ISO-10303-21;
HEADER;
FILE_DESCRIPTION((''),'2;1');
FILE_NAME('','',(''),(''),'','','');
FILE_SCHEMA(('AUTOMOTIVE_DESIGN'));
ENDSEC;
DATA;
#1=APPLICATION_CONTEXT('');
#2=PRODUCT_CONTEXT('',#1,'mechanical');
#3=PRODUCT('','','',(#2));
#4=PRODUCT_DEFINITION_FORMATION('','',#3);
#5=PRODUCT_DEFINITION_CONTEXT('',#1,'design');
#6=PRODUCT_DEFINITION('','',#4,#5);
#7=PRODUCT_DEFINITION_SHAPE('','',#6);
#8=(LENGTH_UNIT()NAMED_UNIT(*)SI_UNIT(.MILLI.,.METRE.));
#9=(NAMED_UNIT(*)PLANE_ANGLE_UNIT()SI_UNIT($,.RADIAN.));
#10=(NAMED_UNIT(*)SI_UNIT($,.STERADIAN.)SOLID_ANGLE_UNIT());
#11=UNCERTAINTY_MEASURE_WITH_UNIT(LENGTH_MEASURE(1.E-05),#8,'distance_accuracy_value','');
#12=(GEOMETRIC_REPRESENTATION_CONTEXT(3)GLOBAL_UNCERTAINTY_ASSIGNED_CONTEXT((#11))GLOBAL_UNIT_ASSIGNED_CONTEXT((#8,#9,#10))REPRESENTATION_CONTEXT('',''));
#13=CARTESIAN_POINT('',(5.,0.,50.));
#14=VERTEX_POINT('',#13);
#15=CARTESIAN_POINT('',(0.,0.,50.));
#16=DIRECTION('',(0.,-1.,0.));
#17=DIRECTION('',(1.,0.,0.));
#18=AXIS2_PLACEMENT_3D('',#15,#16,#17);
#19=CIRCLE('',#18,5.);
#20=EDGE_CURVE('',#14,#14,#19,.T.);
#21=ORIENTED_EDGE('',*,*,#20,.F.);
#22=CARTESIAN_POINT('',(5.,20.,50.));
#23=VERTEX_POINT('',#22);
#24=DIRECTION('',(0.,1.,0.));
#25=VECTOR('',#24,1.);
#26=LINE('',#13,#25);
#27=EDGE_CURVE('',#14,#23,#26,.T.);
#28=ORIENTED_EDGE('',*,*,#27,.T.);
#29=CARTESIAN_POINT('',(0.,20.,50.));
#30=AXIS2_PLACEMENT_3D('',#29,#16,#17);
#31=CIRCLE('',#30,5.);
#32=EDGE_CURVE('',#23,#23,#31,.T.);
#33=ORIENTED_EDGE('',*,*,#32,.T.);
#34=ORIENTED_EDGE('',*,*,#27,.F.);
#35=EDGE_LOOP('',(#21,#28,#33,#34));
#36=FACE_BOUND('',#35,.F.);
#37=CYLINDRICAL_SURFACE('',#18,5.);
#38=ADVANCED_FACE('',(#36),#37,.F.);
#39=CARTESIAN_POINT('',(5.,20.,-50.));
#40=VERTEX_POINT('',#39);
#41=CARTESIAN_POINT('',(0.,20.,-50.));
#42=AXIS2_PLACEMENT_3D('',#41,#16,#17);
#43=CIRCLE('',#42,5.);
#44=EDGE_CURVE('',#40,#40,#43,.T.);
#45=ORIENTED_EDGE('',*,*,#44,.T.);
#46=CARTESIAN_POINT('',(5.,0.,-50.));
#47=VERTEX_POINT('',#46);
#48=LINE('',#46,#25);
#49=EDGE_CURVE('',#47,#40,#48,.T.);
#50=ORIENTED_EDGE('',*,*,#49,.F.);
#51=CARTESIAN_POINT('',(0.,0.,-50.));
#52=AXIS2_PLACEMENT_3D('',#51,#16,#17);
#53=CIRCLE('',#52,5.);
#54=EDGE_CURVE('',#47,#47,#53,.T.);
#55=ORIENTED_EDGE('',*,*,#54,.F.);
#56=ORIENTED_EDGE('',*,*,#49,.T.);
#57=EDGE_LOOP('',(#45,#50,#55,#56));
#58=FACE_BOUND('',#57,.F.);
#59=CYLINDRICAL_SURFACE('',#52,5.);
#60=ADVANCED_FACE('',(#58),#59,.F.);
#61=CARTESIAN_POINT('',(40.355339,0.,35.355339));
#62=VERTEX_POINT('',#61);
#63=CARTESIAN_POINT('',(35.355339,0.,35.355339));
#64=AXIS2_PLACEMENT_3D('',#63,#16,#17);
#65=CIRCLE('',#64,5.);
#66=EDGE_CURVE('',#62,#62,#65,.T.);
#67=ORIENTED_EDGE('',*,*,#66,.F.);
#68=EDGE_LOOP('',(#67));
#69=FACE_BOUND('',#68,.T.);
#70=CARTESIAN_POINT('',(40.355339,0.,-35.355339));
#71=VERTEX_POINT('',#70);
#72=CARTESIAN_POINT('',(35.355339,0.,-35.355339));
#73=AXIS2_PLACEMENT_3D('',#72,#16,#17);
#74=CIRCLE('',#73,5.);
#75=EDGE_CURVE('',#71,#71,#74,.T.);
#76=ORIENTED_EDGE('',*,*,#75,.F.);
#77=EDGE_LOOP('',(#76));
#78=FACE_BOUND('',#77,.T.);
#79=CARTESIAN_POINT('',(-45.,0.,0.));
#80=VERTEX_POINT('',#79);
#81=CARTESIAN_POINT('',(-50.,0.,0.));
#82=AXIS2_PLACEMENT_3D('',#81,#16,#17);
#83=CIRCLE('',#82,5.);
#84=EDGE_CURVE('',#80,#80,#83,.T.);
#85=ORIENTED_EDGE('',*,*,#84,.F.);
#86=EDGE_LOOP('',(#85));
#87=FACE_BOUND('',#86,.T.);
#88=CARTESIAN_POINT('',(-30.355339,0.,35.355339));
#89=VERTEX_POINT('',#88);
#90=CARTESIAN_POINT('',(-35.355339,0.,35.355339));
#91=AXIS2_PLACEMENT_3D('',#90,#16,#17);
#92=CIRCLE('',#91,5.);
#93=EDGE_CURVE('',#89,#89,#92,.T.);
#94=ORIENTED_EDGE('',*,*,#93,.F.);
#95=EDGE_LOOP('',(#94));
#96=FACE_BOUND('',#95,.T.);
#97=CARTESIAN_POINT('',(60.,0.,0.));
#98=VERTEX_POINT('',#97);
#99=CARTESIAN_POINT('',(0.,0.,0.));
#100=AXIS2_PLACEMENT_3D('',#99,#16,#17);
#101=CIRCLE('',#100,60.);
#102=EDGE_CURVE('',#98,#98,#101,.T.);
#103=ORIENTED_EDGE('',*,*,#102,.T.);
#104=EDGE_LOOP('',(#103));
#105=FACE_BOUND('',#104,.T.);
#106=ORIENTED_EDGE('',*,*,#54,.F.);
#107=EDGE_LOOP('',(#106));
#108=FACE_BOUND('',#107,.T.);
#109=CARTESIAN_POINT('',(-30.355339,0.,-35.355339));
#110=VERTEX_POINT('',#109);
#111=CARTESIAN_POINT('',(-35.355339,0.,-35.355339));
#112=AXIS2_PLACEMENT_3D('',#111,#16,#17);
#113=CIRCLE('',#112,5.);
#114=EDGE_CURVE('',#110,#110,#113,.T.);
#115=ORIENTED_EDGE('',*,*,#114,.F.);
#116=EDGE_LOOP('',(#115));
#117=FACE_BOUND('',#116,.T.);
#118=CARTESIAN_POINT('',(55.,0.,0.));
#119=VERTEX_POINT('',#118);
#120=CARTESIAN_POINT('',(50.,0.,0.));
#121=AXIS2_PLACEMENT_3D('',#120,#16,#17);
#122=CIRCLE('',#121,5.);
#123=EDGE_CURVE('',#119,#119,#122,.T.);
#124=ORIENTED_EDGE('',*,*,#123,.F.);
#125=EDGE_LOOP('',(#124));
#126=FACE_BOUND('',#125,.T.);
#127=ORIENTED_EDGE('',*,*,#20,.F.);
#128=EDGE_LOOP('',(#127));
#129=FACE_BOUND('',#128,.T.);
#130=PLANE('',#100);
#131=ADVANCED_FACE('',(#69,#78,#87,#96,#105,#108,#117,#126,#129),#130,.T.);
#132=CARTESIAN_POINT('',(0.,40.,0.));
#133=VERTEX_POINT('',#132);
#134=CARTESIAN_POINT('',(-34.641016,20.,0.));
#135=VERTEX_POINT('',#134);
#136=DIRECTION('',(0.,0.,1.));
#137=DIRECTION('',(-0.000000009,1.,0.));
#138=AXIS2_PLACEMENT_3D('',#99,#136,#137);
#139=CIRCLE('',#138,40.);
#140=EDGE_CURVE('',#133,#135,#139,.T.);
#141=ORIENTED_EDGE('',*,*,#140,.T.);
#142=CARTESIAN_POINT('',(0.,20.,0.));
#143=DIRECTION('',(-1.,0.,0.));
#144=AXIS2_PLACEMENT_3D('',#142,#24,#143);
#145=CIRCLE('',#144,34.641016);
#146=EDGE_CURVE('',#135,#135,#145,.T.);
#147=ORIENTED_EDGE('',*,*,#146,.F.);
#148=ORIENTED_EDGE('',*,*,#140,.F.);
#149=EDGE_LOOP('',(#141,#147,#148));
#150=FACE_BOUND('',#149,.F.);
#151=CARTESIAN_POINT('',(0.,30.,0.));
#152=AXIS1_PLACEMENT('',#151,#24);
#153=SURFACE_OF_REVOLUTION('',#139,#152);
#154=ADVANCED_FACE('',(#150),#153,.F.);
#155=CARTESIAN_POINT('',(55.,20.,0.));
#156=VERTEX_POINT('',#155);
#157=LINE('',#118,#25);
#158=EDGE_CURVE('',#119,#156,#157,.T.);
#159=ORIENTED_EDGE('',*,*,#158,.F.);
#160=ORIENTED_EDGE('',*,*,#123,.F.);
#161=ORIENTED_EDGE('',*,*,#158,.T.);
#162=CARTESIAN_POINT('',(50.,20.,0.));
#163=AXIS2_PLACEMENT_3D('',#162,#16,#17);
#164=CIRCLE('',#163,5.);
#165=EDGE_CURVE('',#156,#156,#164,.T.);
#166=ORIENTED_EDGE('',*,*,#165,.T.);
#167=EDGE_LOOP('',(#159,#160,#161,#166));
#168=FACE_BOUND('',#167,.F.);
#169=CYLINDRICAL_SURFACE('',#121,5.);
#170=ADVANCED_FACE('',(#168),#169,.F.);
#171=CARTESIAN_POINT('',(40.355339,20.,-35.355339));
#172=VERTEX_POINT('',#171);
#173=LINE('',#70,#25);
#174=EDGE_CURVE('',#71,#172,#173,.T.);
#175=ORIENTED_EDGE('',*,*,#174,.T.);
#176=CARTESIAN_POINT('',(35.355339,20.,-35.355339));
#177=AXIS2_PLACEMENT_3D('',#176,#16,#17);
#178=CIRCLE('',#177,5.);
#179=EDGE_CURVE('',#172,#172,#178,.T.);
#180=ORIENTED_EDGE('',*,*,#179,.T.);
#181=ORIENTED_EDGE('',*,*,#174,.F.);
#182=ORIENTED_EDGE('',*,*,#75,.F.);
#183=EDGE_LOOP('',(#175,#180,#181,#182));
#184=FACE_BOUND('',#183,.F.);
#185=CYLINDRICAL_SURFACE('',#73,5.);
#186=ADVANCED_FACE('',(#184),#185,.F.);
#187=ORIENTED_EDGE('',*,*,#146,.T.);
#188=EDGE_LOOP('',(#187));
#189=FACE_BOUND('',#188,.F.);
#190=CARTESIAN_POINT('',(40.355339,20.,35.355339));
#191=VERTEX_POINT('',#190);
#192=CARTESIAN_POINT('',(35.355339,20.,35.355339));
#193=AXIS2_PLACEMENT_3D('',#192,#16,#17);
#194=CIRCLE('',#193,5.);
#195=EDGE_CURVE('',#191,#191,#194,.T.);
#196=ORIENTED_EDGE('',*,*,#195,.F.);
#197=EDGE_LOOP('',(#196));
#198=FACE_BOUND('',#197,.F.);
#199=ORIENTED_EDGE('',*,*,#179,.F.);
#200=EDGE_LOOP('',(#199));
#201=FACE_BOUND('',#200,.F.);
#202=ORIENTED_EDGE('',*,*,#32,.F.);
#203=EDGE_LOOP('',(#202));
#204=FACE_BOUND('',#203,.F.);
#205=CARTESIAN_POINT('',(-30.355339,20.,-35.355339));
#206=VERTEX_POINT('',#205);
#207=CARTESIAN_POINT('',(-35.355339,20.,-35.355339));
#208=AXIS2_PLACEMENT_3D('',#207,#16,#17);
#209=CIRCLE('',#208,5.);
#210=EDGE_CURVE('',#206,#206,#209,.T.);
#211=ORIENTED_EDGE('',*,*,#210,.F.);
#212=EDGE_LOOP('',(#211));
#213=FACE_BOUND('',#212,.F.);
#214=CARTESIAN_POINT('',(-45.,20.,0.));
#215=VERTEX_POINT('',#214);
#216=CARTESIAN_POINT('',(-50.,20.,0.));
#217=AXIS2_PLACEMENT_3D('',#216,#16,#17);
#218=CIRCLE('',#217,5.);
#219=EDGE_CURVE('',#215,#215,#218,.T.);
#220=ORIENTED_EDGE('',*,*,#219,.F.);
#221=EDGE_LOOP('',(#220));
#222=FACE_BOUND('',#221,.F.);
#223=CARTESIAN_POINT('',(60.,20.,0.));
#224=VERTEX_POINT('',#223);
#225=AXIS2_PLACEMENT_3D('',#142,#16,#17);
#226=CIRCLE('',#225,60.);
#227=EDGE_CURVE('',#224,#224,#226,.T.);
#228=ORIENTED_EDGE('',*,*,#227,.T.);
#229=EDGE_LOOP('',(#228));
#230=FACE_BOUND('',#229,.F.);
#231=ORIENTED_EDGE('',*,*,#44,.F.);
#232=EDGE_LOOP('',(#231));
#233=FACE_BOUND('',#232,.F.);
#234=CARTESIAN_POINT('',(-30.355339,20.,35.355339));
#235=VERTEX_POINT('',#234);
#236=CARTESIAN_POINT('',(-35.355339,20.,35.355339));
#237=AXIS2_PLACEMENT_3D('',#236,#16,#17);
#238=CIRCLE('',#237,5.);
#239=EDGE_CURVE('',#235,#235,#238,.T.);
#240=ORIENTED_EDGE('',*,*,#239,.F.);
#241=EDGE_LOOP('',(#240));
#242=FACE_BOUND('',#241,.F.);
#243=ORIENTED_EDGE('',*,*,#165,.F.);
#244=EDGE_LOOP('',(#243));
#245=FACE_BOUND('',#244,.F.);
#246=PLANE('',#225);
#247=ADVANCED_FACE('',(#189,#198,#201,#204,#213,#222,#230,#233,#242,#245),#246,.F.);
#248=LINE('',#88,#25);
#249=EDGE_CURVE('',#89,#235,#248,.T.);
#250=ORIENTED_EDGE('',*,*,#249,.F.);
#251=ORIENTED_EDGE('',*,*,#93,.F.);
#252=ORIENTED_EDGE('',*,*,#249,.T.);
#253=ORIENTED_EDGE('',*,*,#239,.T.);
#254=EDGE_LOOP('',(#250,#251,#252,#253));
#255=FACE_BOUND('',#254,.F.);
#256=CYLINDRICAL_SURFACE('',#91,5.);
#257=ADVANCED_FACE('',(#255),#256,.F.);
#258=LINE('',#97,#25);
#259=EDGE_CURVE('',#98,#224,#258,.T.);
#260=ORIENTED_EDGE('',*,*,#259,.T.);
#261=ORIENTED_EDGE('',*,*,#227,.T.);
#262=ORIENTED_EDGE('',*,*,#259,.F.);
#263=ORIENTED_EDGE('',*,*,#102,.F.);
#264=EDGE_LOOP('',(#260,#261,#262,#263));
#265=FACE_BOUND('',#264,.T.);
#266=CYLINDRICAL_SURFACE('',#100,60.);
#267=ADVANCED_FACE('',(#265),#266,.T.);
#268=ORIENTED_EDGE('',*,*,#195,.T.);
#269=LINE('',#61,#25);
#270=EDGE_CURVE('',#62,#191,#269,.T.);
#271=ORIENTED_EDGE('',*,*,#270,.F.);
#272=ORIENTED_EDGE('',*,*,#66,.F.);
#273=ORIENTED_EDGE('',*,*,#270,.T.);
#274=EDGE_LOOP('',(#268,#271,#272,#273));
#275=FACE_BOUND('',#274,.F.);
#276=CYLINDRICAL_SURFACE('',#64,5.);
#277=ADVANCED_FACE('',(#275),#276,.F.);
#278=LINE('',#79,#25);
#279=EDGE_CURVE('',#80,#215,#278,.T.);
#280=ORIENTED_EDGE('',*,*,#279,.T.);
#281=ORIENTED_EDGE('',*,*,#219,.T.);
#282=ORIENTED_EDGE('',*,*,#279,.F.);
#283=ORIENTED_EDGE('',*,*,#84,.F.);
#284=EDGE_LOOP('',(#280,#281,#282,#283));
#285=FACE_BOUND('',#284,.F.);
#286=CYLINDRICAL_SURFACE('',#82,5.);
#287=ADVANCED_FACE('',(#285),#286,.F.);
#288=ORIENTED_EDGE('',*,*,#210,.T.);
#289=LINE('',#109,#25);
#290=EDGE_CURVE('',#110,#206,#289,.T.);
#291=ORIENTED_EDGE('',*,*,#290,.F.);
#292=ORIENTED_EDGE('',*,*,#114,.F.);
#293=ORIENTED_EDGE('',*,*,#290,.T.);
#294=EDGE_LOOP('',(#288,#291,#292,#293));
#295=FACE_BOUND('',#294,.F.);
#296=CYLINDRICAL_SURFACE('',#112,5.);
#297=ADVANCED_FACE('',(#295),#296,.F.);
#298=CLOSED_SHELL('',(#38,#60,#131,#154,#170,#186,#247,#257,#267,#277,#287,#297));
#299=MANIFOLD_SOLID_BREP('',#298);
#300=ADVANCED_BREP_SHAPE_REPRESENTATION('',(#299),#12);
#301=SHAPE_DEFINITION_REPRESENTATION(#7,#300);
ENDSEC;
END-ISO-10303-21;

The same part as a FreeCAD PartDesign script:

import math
import FreeCAD as App
import Part
import Sketcher

doc = App.newDocument("Part")
body = doc.addObject("PartDesign::Body", "Body")

# Sketch on XZ plane
sketch1 = doc.addObject("Sketcher::SketchObject", "Sketch")
body.addObject(sketch1)
sketch1.AttachmentSupport = (doc.XZ_Plane, [""])
sketch1.MapMode = "FlatFace"
sketch1.addGeometry([
    Part.Circle(App.Vector(0, 0, 0), App.Vector(0, 0, 1), 60),  # 0
    Part.Circle(App.Vector(-35, -35, 0), App.Vector(0, 0, 1), 5),  # 1
    Part.Circle(App.Vector(0, -50, 0), App.Vector(0, 0, 1), 5),  # 2
    Part.Circle(App.Vector(35, -35, 0), App.Vector(0, 0, 1), 5),  # 3
    Part.Circle(App.Vector(-50, 0, 0), App.Vector(0, 0, 1), 5),  # 4
    Part.Circle(App.Vector(-35, 35, 0), App.Vector(0, 0, 1), 5),  # 5
    Part.Circle(App.Vector(50, 0, 0), App.Vector(0, 0, 1), 5),  # 6
    Part.Circle(App.Vector(0, 50, 0), App.Vector(0, 0, 1), 5),  # 7
    Part.Circle(App.Vector(35, 35, 0), App.Vector(0, 0, 1), 5),  # 8
], False)
sketch1.addConstraint([
    Sketcher.Constraint("Coincident", 0, 3, -1, 1),
    Sketcher.Constraint("Equal", 1, 2),
    Sketcher.Constraint("Equal", 2, 3),
    Sketcher.Constraint("Equal", 3, 4),
    Sketcher.Constraint("Equal", 4, 5),
    Sketcher.Constraint("Equal", 5, 6),
    Sketcher.Constraint("Equal", 6, 7),
    Sketcher.Constraint("Equal", 7, 8),
    Sketcher.Constraint("Symmetric", 3, 3, 5, 3, -1, 1),
    Sketcher.Constraint("Symmetric", 4, 3, 6, 3, -1, 1),
    Sketcher.Constraint("Symmetric", 2, 3, 7, 3, -1, 1),
    Sketcher.Constraint("Symmetric", 1, 3, 8, 3, -1, 1),
    Sketcher.Constraint("Symmetric", 1, 3, 3, 3, -2),
    Sketcher.Constraint("PointOnObject", 2, 3, -2),
    Sketcher.Constraint("PointOnObject", 4, 3, -1),
    Sketcher.Constraint("Diameter", 0, 120.0),
    Sketcher.Constraint("Diameter", 1, 10.0),
    Sketcher.Constraint("DistanceY", 2, 3, -1, 1, 50.0),
    Sketcher.Constraint("DistanceX", 4, 3, -1, 1, 50.0),
    Sketcher.Constraint("DistanceX", 1, 3, -1, 1, 35.355339),
    Sketcher.Constraint("DistanceY", 1, 3, -1, 1, 35.355339),
])
pad1 = doc.addObject("PartDesign::Pad", "Pad")
body.addObject(pad1)
pad1.Profile = sketch1
pad1.Length = 20
pad1.Reversed = True

# Sketch on XY plane
sketch2 = doc.addObject("Sketcher::SketchObject", "Sketch001")
body.addObject(sketch2)
sketch2.AttachmentSupport = (doc.XY_Plane, [""])
sketch2.MapMode = "FlatFace"
sketch2.addGeometry([
    Part.LineSegment(App.Vector(0, 20, 0), App.Vector(0, 40, 0)),
    Part.ArcOfCircle(Part.Circle(App.Vector(0, 0, 0), App.Vector(0, 0, 1), 40), math.radians(90), math.radians(150)),
    Part.LineSegment(App.Vector(-35, 20, 0), App.Vector(0, 20, 0)),
], False)
sketch2.addConstraint([
    Sketcher.Constraint("Coincident", 0, 2, 1, 1),
    Sketcher.Constraint("Coincident", 1, 2, 2, 1),
    Sketcher.Constraint("Coincident", 2, 2, 0, 1),
    Sketcher.Constraint("Vertical", 0),
    Sketcher.Constraint("Horizontal", 2),
    Sketcher.Constraint("Coincident", 1, 3, -1, 1),
    Sketcher.Constraint("PointOnObject", 0, 2, -2),
    Sketcher.Constraint("Radius", 1, 40.0),
    Sketcher.Constraint("DistanceY", 0, 1, 0, 2, 20.0),
])
revolution = doc.addObject("PartDesign::Revolution", "Revolution")
body.addObject(revolution)
revolution.Profile = sketch2
revolution.ReferenceAxis = (sketch2, ["V_Axis"])
revolution.Angle = 360

doc.recompute()
